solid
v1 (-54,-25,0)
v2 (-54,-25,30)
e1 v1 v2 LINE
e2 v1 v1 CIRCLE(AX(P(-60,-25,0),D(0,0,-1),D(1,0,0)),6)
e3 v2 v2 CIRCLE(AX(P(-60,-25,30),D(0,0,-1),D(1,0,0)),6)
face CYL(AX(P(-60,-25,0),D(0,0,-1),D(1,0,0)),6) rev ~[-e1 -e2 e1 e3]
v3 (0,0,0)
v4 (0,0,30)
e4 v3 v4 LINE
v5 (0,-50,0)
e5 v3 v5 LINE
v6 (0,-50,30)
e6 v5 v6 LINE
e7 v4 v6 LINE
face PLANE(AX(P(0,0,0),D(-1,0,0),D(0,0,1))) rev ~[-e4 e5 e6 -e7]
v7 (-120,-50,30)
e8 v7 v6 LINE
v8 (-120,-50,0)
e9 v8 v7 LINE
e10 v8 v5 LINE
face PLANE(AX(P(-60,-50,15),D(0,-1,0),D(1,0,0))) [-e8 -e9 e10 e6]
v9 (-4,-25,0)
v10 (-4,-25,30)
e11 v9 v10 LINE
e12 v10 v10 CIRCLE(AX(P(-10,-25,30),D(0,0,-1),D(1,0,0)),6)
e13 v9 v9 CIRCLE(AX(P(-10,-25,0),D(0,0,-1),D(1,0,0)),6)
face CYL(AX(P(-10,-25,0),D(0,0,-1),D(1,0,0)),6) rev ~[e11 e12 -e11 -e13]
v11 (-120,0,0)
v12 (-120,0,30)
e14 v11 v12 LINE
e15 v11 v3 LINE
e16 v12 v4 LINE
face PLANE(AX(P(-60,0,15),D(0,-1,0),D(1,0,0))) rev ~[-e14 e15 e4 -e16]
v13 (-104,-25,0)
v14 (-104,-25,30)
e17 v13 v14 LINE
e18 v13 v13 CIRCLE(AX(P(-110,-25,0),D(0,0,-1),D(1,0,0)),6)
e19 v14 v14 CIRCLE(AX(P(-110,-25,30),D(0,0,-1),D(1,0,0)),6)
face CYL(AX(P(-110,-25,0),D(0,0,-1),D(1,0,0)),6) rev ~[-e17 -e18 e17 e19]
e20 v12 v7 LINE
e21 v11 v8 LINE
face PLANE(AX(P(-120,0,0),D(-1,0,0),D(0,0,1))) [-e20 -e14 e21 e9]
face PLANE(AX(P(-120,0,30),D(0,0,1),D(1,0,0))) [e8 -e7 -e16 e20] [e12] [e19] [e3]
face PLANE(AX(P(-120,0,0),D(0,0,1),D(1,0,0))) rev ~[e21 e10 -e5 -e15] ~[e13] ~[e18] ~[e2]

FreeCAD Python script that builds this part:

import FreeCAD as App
import Part
import Sketcher
Q = App.Units.Quantity

doc = App.newDocument("Part")
body = doc.addObject("PartDesign::Body", "Body")

# Sketch on XZ plane
sketch1 = doc.addObject("Sketcher::SketchObject", "Sketch")
body.addObject(sketch1)
sketch1.AttachmentSupport = (doc.XZ_Plane, [""])
sketch1.MapMode = "FlatFace"
sketch1.addGeometry(Part.LineSegment(App.Vector(-120, 30, 0), App.Vector(-120, 0, 0)), False)
sketch1.addGeometry(Part.LineSegment(App.Vector(-120, 0, 0), App.Vector(0, 0, 0)), False)
sketch1.addGeometry(Part.LineSegment(App.Vector(0, 0, 0), App.Vector(0, 30, 0)), False)
sketch1.addGeometry(Part.LineSegment(App.Vector(0, 30, 0), App.Vector(-120, 30, 0)), False)
sketch1.addConstraint(Sketcher.Constraint("Coincident", 0, 2, 1, 1))
sketch1.addConstraint(Sketcher.Constraint("Coincident", 1, 2, 2, 1))
sketch1.addConstraint(Sketcher.Constraint("Coincident", 2, 2, 3, 1))
sketch1.addConstraint(Sketcher.Constraint("Coincident", 3, 2, 0, 1))
sketch1.addConstraint(Sketcher.Constraint("Vertical", 0))
sketch1.addConstraint(Sketcher.Constraint("Horizontal", 1))
sketch1.addConstraint(Sketcher.Constraint("Vertical", 2))
sketch1.addConstraint(Sketcher.Constraint("Horizontal", 3))
sketch1.addConstraint(Sketcher.Constraint("Coincident", 1, 2, -1, 1))
sketch1.addConstraint(Sketcher.Constraint("DistanceX", 1, 1, 1, 2, Q("120 mm")))
sketch1.addConstraint(Sketcher.Constraint("DistanceY", 0, 2, 0, 1, Q("30 mm")))
pad1 = doc.addObject("PartDesign::Pad", "Pad")
body.addObject(pad1)
pad1.Profile = sketch1
pad1.Length = 50

# Sketch on XY plane
sketch2 = doc.addObject("Sketcher::SketchObject", "Sketch001")
body.addObject(sketch2)
sketch2.AttachmentSupport = (doc.XY_Plane, [""])
sketch2.MapMode = "FlatFace"
sketch2.addGeometry(Part.Circle(App.Vector(-110, -25, 0), App.Vector(0, 0, 1), 6), False)
sketch2.addGeometry(Part.Circle(App.Vector(-10, -25, 0), App.Vector(0, 0, 1), 6), False)
sketch2.addGeometry(Part.Circle(App.Vector(-60, -25, 0), App.Vector(0, 0, 1), 6), False)
sketch2.addConstraint(Sketcher.Constraint("Equal", 0, 1))
sketch2.addConstraint(Sketcher.Constraint("Equal", 1, 2))
sketch2.addConstraint(Sketcher.Constraint("Horizontal", 0, 3, 1, 3))
sketch2.addConstraint(Sketcher.Constraint("Horizontal", 1, 3, 2, 3))
sketch2.addConstraint(Sketcher.Constraint("Diameter", 0, Q("12 mm")))
sketch2.addConstraint(Sketcher.Constraint("DistanceX", 0, 3, -1, 1, Q("110 mm")))
sketch2.addConstraint(Sketcher.Constraint("DistanceY", 0, 3, -1, 1, Q("25 mm")))
sketch2.addConstraint(Sketcher.Constraint("DistanceX", 1, 3, -1, 1, Q("10 mm")))
sketch2.addConstraint(Sketcher.Constraint("DistanceX", 2, 3, -1, 1, Q("60 mm")))
pocket1 = doc.addObject("PartDesign::Pocket", "Pocket")
body.addObject(pocket1)
pocket1.Profile = sketch2
pocket1.Type = "ThroughAll"
pocket1.Reversed = True

doc.recompute()
